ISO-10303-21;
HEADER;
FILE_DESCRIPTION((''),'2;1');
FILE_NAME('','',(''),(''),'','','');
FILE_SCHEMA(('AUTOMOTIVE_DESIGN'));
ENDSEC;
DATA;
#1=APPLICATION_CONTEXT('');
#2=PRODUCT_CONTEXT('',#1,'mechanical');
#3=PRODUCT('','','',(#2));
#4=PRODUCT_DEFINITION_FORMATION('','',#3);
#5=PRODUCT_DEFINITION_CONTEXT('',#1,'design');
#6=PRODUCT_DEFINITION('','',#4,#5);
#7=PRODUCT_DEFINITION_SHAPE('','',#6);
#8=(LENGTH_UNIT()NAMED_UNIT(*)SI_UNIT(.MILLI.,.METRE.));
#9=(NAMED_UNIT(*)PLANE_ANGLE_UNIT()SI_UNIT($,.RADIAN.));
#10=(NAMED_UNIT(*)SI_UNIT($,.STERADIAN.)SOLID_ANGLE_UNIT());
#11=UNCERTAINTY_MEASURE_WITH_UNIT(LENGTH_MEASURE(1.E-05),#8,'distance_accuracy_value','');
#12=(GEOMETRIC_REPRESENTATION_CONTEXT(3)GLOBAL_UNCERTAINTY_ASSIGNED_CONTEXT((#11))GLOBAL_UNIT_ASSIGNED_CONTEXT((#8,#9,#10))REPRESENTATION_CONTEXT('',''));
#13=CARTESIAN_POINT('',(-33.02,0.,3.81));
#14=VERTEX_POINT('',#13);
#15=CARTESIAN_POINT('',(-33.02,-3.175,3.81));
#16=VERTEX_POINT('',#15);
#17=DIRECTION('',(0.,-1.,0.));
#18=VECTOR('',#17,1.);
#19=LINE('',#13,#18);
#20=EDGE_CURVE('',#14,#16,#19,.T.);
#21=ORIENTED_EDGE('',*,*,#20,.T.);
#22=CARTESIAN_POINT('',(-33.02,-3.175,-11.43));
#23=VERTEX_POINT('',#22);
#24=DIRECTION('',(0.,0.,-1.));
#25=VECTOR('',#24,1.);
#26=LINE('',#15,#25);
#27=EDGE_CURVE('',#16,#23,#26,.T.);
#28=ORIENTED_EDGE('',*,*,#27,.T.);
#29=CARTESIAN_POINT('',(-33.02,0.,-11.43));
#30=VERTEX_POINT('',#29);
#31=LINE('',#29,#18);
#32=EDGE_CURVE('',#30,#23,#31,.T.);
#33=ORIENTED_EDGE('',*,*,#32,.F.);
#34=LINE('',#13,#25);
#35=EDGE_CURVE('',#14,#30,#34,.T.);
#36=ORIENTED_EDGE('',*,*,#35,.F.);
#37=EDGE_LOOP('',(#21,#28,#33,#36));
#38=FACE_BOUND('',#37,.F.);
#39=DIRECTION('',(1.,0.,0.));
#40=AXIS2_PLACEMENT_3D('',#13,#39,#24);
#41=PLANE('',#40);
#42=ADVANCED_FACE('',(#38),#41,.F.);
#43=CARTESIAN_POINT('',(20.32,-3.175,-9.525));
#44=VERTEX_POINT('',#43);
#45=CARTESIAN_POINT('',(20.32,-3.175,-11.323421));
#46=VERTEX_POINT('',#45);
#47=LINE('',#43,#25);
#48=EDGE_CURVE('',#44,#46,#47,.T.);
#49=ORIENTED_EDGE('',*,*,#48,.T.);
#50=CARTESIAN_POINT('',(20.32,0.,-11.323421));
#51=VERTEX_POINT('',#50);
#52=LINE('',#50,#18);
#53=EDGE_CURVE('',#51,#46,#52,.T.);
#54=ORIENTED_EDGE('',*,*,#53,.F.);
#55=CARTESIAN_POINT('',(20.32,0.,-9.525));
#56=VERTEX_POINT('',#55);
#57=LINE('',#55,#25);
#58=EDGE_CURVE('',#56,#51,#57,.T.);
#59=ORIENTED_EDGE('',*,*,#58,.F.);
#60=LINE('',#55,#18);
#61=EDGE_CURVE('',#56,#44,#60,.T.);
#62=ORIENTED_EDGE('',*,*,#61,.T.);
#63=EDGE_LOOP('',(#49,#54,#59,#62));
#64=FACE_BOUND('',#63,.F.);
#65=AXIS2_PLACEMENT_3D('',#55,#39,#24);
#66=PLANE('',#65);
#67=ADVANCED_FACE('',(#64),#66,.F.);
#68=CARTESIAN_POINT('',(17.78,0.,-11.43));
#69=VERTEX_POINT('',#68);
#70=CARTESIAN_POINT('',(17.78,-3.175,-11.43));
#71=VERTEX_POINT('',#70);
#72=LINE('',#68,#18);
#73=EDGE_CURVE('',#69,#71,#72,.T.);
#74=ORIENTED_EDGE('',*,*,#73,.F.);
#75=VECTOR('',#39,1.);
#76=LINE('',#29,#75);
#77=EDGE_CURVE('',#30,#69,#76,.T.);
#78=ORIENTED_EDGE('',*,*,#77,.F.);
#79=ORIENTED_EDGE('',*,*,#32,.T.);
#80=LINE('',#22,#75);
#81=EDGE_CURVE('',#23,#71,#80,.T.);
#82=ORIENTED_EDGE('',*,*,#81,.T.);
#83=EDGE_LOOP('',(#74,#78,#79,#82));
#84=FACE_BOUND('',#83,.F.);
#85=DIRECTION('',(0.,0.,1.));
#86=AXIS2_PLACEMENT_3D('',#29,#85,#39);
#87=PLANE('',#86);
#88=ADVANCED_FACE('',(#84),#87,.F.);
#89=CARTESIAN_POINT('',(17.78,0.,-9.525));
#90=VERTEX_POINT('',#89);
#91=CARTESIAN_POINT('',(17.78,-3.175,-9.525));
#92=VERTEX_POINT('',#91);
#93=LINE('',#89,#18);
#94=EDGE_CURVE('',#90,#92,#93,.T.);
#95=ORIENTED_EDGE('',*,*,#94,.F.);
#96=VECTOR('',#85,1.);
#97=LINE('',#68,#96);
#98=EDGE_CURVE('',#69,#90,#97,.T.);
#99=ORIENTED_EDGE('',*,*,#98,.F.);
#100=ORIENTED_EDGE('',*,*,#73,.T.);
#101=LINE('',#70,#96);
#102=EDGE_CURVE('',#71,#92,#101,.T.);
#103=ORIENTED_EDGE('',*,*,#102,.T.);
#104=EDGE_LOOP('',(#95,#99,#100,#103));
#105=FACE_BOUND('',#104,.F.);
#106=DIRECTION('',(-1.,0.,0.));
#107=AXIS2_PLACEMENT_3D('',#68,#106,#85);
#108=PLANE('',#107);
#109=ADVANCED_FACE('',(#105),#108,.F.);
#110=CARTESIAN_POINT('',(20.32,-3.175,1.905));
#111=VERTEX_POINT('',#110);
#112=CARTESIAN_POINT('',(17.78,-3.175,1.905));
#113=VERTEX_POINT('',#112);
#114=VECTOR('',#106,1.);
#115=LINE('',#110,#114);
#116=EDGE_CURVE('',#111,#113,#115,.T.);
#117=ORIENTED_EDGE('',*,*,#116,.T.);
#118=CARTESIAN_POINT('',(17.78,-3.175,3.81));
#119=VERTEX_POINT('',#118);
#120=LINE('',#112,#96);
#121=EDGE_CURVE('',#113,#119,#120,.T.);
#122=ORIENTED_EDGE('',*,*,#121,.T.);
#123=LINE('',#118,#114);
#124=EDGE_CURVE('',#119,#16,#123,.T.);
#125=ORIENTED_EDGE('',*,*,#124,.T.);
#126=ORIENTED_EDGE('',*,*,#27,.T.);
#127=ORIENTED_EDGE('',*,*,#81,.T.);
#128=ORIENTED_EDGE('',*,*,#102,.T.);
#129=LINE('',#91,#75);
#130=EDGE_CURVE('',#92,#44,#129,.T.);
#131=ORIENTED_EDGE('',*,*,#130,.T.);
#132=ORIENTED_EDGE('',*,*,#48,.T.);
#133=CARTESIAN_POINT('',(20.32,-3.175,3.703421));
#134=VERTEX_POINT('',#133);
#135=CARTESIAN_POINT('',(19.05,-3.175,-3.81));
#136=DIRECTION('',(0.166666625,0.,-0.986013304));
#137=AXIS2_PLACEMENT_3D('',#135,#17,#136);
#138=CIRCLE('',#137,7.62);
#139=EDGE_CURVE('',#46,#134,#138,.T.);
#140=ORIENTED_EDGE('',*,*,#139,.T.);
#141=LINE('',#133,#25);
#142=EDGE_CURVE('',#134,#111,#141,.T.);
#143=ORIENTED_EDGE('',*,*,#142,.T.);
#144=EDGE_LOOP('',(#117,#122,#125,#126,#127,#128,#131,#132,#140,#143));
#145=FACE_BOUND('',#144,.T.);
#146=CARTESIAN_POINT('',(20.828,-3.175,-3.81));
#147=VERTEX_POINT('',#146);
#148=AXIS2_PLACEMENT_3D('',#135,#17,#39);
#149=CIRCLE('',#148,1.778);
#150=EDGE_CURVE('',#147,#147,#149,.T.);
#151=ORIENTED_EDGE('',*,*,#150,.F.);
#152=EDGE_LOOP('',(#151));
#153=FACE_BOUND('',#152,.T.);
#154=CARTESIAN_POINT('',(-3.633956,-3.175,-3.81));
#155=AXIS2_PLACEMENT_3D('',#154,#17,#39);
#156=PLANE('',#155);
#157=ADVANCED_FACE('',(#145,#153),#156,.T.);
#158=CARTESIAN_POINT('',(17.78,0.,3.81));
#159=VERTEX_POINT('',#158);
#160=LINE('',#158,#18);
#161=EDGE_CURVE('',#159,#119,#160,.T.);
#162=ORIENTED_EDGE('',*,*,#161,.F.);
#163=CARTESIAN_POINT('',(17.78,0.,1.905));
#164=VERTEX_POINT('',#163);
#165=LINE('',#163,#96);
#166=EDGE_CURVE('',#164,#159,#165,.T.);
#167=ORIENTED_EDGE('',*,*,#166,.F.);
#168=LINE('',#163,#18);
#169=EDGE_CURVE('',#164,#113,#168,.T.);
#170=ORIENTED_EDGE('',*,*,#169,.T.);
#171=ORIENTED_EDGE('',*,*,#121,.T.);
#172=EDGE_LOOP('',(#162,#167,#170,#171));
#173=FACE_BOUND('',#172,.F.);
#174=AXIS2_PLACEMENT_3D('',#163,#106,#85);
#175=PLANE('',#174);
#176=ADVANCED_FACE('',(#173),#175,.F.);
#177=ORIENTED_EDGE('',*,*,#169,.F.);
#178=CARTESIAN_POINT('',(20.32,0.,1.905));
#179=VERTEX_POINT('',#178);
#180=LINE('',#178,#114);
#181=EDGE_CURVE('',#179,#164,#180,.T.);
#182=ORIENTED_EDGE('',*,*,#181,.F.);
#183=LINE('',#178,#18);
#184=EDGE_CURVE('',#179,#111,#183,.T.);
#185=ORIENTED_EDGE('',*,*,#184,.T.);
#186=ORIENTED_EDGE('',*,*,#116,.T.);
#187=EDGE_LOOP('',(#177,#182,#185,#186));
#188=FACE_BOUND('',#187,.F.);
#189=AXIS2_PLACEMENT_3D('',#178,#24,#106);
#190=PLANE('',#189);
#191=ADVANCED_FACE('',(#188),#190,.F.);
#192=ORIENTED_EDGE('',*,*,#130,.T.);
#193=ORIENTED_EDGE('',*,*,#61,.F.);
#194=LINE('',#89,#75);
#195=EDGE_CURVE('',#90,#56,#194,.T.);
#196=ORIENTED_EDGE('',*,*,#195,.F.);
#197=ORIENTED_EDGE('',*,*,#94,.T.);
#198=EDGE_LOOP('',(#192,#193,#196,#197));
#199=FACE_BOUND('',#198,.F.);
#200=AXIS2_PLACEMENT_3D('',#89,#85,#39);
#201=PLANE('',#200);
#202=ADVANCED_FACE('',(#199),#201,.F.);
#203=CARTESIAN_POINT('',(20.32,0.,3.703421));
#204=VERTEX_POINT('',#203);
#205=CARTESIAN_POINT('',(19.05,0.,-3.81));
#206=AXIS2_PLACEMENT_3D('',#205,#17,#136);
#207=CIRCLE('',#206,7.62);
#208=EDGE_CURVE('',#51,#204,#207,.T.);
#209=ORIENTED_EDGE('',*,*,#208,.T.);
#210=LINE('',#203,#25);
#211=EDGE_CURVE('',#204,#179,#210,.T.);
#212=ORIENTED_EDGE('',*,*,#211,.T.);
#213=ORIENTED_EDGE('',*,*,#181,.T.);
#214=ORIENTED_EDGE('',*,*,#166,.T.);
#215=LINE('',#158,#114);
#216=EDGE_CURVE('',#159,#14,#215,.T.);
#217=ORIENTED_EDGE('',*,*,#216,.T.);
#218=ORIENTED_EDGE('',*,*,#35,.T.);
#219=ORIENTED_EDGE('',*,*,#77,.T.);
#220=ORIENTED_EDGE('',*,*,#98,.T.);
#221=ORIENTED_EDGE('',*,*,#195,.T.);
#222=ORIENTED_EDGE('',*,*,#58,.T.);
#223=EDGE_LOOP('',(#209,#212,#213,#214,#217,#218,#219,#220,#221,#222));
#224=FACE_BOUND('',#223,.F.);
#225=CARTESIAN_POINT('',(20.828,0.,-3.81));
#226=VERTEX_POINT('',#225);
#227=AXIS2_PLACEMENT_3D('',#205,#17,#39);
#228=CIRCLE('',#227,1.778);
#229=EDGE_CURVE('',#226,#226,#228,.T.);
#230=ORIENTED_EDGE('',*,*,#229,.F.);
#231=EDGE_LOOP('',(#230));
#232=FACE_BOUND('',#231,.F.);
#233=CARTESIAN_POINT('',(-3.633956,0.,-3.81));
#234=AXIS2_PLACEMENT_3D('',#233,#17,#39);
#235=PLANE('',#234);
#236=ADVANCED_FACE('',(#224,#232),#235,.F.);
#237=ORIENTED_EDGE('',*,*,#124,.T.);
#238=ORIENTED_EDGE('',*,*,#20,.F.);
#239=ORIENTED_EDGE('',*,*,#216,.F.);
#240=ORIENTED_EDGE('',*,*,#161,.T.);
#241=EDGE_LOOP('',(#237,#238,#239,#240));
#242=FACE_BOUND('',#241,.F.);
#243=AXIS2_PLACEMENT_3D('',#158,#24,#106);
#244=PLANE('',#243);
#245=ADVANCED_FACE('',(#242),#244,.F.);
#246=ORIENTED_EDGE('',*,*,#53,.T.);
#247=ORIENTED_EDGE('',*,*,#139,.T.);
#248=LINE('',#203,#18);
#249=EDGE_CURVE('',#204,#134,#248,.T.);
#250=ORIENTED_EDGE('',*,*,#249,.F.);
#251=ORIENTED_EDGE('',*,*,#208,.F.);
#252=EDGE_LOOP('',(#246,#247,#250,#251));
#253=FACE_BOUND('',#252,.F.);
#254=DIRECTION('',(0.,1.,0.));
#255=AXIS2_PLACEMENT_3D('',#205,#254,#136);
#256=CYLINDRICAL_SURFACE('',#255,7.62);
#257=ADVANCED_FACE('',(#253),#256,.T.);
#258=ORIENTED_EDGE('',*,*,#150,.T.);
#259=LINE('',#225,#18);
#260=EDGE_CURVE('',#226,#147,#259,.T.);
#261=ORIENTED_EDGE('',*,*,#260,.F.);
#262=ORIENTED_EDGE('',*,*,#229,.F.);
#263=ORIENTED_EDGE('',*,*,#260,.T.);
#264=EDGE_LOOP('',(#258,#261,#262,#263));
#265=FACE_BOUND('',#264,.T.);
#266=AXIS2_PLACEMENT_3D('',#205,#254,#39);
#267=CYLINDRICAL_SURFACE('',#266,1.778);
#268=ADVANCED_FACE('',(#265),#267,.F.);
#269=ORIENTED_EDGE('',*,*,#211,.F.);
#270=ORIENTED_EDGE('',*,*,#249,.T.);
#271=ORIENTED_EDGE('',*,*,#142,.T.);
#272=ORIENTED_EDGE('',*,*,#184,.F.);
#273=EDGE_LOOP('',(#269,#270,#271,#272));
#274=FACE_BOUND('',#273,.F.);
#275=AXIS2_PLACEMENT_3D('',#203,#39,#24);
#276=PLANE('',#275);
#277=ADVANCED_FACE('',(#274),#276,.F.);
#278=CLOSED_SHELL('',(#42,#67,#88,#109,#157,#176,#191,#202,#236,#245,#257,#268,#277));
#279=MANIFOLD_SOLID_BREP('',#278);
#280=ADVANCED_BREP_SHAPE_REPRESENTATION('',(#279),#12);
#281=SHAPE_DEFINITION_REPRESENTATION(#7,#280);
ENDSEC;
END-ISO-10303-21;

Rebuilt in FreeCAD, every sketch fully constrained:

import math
import FreeCAD as App
import Part
import Sketcher
from FreeCAD import Vector
Q = App.Units.Quantity

doc = App.newDocument("Part")
body = doc.addObject("PartDesign::Body", "Body")

# Sketch on XZ plane
sketch1 = doc.addObject("Sketcher::SketchObject", "Sketch")
body.addObject(sketch1)
sketch1.AttachmentSupport = (doc.XZ_Plane, [""])
sketch1.MapMode = "FlatFace"
sketch1.addGeometry(Part.LineSegment(Vector(17.8, 1.9, 0), Vector(17.8, 3.8, 0)), False)
sketch1.addGeometry(Part.LineSegment(Vector(17.8, 3.8, 0), Vector(-33, 3.8, 0)), False)
sketch1.addGeometry(Part.LineSegment(Vector(-33, 3.8, 0), Vector(-33, -11.4, 0)), False)
sketch1.addGeometry(Part.LineSegment(Vector(-33, -11.4, 0), Vector(17.8, -11.4, 0)), False)
sketch1.addGeometry(Part.LineSegment(Vector(17.8, -11.4, 0), Vector(17.8, -9.5, 0)), False)
sketch1.addGeometry(Part.LineSegment(Vector(17.8, -9.5, 0), Vector(20.3, -9.5, 0)), False)
sketch1.addGeometry(Part.LineSegment(Vector(20.3, -9.5, 0), Vector(20.3, -11.3, 0)), False)
sketch1.addGeometry(Part.ArcOfCircle(Part.Circle(Vector(19.1, -3.8, 0), Vector(0, 0, 1), 7.6), math.radians(-80), math.radians(80)), False)
sketch1.addGeometry(Part.LineSegment(Vector(20.3, 3.7, 0), Vector(20.3, 1.9, 0)), False)
sketch1.addGeometry(Part.LineSegment(Vector(20.3, 1.9, 0), Vector(17.8, 1.9, 0)), False)
sketch1.addGeometry(Part.Circle(Vector(19.1, -3.8, 0), Vector(0, 0, 1), 1.8), False)
sketch1.addConstraint(Sketcher.Constraint("Coincident", 0, 2, 1, 1))
sketch1.addConstraint(Sketcher.Constraint("Coincident", 1, 2, 2, 1))
sketch1.addConstraint(Sketcher.Constraint("Coincident", 2, 2, 3, 1))
sketch1.addConstraint(Sketcher.Constraint("Coincident", 3, 2, 4, 1))
sketch1.addConstraint(Sketcher.Constraint("Coincident", 4, 2, 5, 1))
sketch1.addConstraint(Sketcher.Constraint("Coincident", 5, 2, 6, 1))
sketch1.addConstraint(Sketcher.Constraint("Coincident", 6, 2, 7, 1))
sketch1.addConstraint(Sketcher.Constraint("Coincident", 7, 2, 8, 1))
sketch1.addConstraint(Sketcher.Constraint("Coincident", 8, 2, 9, 1))
sketch1.addConstraint(Sketcher.Constraint("Coincident", 9, 2, 0, 1))
sketch1.addConstraint(Sketcher.Constraint("Vertical", 0))
sketch1.addConstraint(Sketcher.Constraint("Horizontal", 1))
sketch1.addConstraint(Sketcher.Constraint("Vertical", 2))
sketch1.addConstraint(Sketcher.Constraint("Horizontal", 3))
sketch1.addConstraint(Sketcher.Constraint("Vertical", 4))
sketch1.addConstraint(Sketcher.Constraint("Horizontal", 5))
sketch1.addConstraint(Sketcher.Constraint("Vertical", 6))
sketch1.addConstraint(Sketcher.Constraint("Vertical", 8))
sketch1.addConstraint(Sketcher.Constraint("Horizontal", 9))
sketch1.addConstraint(Sketcher.Constraint("Coincident", 10, 3, 7, 3))
sketch1.addConstraint(Sketcher.Constraint("Vertical", 0, 2, 3, 2))
sketch1.addConstraint(Sketcher.Constraint("Vertical", 6, 2, 7, 2))
sketch1.addConstraint(Sketcher.Constraint("Equal", 0, 4))
sketch1.addConstraint(Sketcher.Constraint("Equal", 6, 8))
sketch1.addConstraint(Sketcher.Constraint("Radius", 7, Q("0.3 in")))
sketch1.addConstraint(Sketcher.Constraint("Diameter", 10, Q("0.14 in")))
sketch1.addConstraint(Sketcher.Constraint("DistanceX", 1, 2, 1, 1, Q("2 in")))
sketch1.addConstraint(Sketcher.Constraint("DistanceX", 5, 1, 5, 2, Q("0.1 in")))
sketch1.addConstraint(Sketcher.Constraint("DistanceY", 2, 2, 2, 1, Q("0.6 in")))
sketch1.addConstraint(Sketcher.Constraint("DistanceX", -1, 1, 0, 2, Q("0.7 in")))
sketch1.addConstraint(Sketcher.Constraint("DistanceY", 0, 1, 0, 2, Q("0.075 in")))
sketch1.addConstraint(Sketcher.Constraint("DistanceX", -1, 1, 7, 3, Q("0.75 in")))
sketch1.addConstraint(Sketcher.Constraint("DistanceY", 7, 3, -1, 1, Q("0.15 in")))
pad1 = doc.addObject("PartDesign::Pad", "Pad")
body.addObject(pad1)
pad1.Profile = sketch1
pad1.Length = Q("0.125 in")

doc.recompute()
